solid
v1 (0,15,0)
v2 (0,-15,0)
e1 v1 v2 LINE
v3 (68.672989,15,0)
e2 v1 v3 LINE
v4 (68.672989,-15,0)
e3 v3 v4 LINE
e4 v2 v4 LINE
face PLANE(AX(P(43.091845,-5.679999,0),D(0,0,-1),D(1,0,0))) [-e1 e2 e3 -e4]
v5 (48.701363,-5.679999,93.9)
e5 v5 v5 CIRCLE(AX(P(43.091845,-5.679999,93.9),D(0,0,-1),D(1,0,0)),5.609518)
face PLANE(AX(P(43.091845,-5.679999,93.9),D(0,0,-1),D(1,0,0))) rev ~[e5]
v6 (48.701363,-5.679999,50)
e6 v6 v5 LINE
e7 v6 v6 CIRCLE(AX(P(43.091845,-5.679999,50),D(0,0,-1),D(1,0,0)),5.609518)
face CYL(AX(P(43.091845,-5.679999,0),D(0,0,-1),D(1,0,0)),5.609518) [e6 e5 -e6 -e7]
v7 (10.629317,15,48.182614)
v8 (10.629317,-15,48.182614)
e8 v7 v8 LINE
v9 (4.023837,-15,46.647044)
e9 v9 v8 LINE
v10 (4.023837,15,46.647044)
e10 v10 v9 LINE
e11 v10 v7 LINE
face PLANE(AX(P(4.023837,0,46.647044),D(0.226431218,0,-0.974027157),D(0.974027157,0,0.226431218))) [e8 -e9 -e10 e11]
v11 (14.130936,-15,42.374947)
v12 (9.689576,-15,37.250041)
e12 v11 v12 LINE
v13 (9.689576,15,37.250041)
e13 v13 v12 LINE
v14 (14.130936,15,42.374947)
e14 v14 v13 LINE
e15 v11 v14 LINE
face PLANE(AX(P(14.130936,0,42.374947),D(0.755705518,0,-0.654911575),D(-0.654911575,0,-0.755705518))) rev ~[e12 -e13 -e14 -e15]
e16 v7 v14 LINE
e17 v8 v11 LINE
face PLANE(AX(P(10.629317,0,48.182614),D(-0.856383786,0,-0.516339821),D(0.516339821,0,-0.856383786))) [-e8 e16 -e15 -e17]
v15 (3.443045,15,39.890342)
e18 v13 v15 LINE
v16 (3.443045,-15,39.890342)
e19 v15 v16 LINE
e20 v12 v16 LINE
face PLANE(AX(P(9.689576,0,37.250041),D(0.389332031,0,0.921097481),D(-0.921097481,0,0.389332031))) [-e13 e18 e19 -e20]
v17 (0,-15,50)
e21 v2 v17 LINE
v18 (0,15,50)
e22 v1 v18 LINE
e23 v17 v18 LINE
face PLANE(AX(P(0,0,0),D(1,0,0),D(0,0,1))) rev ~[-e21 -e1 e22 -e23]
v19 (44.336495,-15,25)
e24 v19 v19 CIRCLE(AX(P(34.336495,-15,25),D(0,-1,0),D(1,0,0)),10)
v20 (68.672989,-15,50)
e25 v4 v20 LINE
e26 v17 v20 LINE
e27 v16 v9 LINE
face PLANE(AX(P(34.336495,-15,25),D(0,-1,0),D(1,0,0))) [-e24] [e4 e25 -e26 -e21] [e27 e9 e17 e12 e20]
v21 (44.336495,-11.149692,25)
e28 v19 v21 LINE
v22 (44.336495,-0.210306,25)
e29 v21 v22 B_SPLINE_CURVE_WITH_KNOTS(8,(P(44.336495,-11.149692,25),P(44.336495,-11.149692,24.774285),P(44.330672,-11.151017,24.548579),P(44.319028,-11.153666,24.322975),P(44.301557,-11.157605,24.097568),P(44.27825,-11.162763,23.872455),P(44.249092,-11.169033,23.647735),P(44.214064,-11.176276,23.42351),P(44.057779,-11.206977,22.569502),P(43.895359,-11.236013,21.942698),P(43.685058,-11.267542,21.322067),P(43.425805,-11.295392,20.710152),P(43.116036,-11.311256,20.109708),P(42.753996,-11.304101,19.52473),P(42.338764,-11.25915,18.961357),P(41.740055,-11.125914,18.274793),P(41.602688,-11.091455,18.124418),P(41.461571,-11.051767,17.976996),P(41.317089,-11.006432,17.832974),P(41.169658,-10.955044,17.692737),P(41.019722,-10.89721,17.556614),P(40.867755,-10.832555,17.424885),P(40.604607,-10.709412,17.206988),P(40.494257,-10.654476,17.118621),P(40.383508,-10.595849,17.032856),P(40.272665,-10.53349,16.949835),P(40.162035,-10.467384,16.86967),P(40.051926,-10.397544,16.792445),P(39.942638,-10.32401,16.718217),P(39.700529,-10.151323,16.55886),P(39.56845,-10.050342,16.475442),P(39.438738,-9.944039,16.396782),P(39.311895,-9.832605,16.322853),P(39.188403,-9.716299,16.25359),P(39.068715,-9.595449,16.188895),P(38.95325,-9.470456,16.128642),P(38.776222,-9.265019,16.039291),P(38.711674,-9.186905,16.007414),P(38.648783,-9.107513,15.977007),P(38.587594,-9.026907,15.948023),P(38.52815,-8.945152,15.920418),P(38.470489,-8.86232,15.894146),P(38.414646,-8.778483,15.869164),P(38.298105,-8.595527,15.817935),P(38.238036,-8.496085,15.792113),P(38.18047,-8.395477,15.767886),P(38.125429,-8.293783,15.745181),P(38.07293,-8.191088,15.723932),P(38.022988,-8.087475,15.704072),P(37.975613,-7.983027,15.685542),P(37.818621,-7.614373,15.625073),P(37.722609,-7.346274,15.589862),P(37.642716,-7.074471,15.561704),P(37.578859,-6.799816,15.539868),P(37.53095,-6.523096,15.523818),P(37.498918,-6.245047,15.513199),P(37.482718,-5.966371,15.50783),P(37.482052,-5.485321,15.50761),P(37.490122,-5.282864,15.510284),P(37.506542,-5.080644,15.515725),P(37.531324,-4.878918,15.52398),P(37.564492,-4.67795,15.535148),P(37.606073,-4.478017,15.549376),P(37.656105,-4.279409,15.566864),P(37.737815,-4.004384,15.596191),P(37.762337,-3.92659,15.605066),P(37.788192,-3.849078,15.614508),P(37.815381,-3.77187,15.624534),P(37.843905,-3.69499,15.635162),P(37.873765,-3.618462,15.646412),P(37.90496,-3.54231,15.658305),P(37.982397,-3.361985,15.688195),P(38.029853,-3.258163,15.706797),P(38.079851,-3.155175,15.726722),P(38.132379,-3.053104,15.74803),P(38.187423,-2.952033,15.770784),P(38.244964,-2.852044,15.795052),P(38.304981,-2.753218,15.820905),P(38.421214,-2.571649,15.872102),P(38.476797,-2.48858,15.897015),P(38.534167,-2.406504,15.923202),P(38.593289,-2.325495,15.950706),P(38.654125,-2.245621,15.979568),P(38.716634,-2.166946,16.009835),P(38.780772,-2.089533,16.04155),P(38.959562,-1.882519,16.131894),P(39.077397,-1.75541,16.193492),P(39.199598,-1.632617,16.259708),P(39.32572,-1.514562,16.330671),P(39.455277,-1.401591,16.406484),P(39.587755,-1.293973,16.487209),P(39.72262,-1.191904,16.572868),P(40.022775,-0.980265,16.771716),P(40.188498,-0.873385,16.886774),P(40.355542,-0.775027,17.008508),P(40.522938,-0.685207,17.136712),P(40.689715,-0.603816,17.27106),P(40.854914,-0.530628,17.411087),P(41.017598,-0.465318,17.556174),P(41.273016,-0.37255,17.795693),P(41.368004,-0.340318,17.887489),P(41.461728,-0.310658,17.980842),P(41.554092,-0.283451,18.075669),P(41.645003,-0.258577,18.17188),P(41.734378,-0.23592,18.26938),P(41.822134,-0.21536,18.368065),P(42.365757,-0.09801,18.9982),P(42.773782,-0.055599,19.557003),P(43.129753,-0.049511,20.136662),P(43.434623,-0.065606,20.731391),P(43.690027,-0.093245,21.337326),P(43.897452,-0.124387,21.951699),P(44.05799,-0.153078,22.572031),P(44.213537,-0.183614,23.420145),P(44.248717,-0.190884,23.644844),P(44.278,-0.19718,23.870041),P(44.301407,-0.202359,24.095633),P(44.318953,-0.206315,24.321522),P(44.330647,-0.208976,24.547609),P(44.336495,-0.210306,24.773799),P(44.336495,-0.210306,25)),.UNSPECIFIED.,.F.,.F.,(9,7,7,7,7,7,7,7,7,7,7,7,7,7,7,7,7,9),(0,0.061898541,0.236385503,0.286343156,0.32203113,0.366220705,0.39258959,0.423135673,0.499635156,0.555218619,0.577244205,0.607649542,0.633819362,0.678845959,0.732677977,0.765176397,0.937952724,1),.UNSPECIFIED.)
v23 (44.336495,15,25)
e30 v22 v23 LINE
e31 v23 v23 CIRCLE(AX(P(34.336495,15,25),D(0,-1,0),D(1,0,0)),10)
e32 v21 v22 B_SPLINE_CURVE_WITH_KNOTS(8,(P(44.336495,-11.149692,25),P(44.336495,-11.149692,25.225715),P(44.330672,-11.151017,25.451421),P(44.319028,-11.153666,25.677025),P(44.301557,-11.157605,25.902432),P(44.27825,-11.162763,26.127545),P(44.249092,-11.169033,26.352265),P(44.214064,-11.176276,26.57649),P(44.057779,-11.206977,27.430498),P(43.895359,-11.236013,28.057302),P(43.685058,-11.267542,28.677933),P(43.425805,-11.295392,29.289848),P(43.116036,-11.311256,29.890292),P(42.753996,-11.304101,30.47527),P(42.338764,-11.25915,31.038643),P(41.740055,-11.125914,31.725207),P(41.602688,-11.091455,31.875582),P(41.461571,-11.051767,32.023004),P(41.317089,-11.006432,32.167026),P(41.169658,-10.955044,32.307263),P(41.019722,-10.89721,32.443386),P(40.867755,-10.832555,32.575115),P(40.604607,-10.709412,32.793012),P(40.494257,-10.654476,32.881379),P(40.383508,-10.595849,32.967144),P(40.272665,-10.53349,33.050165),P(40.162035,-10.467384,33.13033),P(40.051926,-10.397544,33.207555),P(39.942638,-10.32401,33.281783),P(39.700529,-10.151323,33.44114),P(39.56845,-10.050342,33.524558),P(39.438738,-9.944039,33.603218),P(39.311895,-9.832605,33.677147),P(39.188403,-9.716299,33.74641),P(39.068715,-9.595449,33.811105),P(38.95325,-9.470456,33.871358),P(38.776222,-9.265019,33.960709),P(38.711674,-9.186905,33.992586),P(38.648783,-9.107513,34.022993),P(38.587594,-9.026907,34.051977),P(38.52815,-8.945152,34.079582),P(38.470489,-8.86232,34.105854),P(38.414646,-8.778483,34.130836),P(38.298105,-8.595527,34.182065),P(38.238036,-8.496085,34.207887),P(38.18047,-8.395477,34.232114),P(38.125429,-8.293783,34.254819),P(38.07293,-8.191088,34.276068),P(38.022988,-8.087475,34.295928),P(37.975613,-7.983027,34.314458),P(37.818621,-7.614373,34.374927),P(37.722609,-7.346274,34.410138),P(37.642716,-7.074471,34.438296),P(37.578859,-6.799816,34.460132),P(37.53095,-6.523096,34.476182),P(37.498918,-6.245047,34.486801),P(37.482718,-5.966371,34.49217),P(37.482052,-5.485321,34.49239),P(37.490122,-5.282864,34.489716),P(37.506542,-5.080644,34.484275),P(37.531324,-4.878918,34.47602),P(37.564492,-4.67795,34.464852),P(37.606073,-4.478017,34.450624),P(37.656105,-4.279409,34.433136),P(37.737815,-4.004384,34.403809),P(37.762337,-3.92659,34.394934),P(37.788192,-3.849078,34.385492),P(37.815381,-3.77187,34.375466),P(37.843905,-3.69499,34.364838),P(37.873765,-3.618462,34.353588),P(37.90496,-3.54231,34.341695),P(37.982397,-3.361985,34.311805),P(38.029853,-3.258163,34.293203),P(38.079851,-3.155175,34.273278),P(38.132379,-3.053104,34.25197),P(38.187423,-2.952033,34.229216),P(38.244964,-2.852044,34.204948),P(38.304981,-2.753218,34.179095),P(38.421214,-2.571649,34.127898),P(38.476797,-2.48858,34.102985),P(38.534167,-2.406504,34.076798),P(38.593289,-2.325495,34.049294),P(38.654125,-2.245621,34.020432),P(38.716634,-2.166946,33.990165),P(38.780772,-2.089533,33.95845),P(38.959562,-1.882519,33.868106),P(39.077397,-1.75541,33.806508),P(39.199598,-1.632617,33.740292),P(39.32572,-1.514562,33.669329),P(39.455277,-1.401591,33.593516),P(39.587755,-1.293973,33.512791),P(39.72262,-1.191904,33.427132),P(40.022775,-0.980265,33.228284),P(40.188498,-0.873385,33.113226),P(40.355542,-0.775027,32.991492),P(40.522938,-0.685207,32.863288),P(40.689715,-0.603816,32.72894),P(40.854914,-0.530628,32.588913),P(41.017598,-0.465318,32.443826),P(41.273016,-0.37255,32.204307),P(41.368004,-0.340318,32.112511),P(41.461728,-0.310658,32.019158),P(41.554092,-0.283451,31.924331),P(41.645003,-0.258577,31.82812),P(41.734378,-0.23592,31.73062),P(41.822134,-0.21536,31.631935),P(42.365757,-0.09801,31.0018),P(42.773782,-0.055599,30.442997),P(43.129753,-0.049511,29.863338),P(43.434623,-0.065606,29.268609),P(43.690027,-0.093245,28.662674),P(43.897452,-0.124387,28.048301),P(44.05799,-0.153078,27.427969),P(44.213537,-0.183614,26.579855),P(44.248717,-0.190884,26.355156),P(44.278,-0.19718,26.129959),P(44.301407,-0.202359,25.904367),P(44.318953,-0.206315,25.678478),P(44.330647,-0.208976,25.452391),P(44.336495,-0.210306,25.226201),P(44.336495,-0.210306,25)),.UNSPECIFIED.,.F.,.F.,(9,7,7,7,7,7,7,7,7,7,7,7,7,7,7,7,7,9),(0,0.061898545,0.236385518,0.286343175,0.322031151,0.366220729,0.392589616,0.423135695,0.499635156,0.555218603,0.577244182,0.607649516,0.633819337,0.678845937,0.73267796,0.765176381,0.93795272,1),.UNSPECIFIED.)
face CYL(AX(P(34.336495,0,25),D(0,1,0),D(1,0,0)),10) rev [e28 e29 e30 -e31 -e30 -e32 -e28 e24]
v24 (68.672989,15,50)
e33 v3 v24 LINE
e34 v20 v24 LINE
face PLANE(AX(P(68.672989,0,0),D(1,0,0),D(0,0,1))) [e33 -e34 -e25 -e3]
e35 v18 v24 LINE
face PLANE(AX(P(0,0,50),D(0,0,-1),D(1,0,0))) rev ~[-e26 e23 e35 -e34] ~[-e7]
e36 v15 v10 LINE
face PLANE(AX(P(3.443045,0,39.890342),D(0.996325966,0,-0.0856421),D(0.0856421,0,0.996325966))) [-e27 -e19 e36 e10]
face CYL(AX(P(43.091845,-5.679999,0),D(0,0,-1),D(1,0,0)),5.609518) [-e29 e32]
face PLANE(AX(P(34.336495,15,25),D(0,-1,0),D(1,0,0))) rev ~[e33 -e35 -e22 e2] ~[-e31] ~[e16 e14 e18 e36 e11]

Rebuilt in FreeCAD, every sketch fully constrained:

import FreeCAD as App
import Part
import Sketcher

V = App.Vector


def add_polygon(sketch, points):
    """Adds a closed chain of lines whose ends are joined by coincident constraints."""
    first, n = sketch.GeometryCount, len(points)
    for a, b in zip(points, points[1:] + points[:1]):
        sketch.addGeometry(Part.LineSegment(App.Vector(*a, 0), App.Vector(*b, 0)), False)
    for i in range(n):
        sketch.addConstraint(Sketcher.Constraint("Coincident", first + i, 2, first + (i + 1) % n, 1))

doc = App.newDocument("Part")
body = doc.addObject("PartDesign::Body", "Body")

# Sketch on XZ plane
sketch1 = body.newObject("Sketcher::SketchObject", "Sketch")
sketch1.AttachmentSupport = (doc.getObject("XZ_Plane"), [""])
sketch1.MapMode = "FlatFace"
add_polygon(sketch1, [(0, 50), (0, 0), (69, 0), (69, 50)])  # lines 0-3
sketch1.addGeometry(Part.Circle(V(34, 25, 0), V(0, 0, 1), 10), False)  # 4
add_polygon(sketch1, [(4, 47), (11, 48), (14, 42), (10, 37), (3, 40)])  # lines 5-9
sketch1.addConstraint(Sketcher.Constraint("Vertical", 0))
sketch1.addConstraint(Sketcher.Constraint("Horizontal", 1))
sketch1.addConstraint(Sketcher.Constraint("Vertical", 2))
sketch1.addConstraint(Sketcher.Constraint("Horizontal", 3))
sketch1.addConstraint(Sketcher.Constraint("Coincident", 0, 2, -1, 1))
sketch1.addConstraint(Sketcher.Constraint("Equal", 5, 6))
sketch1.addConstraint(Sketcher.Constraint("Equal", 6, 7))
sketch1.addConstraint(Sketcher.Constraint("Equal", 7, 8))
sketch1.addConstraint(Sketcher.Constraint("Equal", 8, 9))
sketch1.addConstraint(Sketcher.Constraint("Diameter", 4, 20.0))
sketch1.addConstraint(Sketcher.Constraint("DistanceY", 0, 2, 0, 1, 50.0))
sketch1.addConstraint(Sketcher.Constraint("DistanceY", -1, 1, 4, 3, 25.0))
sketch1.addConstraint(Sketcher.Constraint("DistanceX", 1, 1, 1, 2, 68.672989))
sketch1.addConstraint(Sketcher.Constraint("DistanceY", 7, 2, 8, 2, 2.640301))
sketch1.addConstraint(Sketcher.Constraint("DistanceX", 9, 2, 6, 2, 10.107099))
sketch1.addConstraint(Sketcher.Constraint("DistanceY", -1, 1, 7, 2, 37.250041))
sketch1.addConstraint(Sketcher.Constraint("DistanceX", 5, 2, 6, 2, 3.501619))
sketch1.addConstraint(Sketcher.Constraint("DistanceX", 6, 2, 4, 3, 20.205559))
sketch1.addConstraint(Sketcher.Constraint("DistanceX", 7, 2, 6, 2, 4.44136))
sketch1.addConstraint(Sketcher.Constraint("DistanceX", -1, 1, 4, 3, 34.336495))
pad1 = body.newObject("PartDesign::Pad", "Pad")
pad1.Profile = sketch1
pad1.Length = 30
pad1.Midplane = True

# Sketch on XY plane
sketch2 = body.newObject("Sketcher::SketchObject", "Sketch001")
sketch2.AttachmentSupport = (doc.getObject("XY_Plane"), [""])
sketch2.MapMode = "FlatFace"
sketch2.addGeometry(Part.Circle(V(43, -6, 0), V(0, 0, 1), 6), False)
sketch2.addConstraint(Sketcher.Constraint("DistanceY", 0, 3, -1, 1, 5.679999))
sketch2.addConstraint(Sketcher.Constraint("Diameter", 0, 11.219036))
sketch2.addConstraint(Sketcher.Constraint("DistanceX", -1, 1, 0, 3, 43.091845))
pad2 = body.newObject("PartDesign::Pad", "Pad001")
pad2.Profile = sketch2
pad2.Length = 93.9

doc.recompute()
